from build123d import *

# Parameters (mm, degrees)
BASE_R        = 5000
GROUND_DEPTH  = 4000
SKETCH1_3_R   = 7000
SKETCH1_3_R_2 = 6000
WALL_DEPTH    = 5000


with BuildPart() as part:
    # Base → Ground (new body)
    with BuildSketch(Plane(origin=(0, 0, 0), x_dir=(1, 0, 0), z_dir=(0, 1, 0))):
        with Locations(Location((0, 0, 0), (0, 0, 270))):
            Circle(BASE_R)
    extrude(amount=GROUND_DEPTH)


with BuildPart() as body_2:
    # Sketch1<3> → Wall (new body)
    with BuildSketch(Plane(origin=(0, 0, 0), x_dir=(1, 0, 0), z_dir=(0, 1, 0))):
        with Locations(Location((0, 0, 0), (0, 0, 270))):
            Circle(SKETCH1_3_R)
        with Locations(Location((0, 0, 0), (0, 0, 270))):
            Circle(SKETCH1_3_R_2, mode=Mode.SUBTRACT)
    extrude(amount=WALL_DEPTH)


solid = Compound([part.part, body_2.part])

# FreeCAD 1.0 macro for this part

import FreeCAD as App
import Part
import Sketcher

doc = App.newDocument("Part")
body = doc.addObject("PartDesign::Body", "Body")

# Sketch on XZ plane
sketch1 = body.newObject("Sketcher::SketchObject", "Sketch")
sketch1.AttachmentSupport = (doc.getObject("XZ_Plane"), [""])
sketch1.MapMode = "FlatFace"
sketch1.addGeometry(Part.Circle(App.Vector(0, 0, 0), App.Vector(0, 0, 1), 5000), False)
sketch1.addConstraint([
    Sketcher.Constraint("Coincident", 0, 3, -1, 1),
    Sketcher.Constraint("Diameter", 0, 10000.0),
])
pad1 = body.newObject("PartDesign::Pad", "Pad")
pad1.Profile = sketch1
pad1.Length = 4000
pad1.Reversed = True
body2 = doc.addObject("PartDesign::Body", "Body001")

# Sketch on XZ plane
sketch2 = body2.newObject("Sketcher::SketchObject", "Sketch001")
sketch2.AttachmentSupport = (doc.getObject("XZ_Plane001"), [""])
sketch2.MapMode = "FlatFace"
sketch2.addGeometry([
    Part.Circle(App.Vector(0, 0, 0), App.Vector(0, 0, 1), 7000),
    Part.Circle(App.Vector(0, 0, 0), App.Vector(0, 0, 1), 6000),
], False)
sketch2.addConstraint([
    Sketcher.Constraint("Coincident", 0, 3, -1, 1),
    Sketcher.Constraint("Coincident", 1, 3, -1, 1),
    Sketcher.Constraint("Diameter", 0, 14000.0),
    Sketcher.Constraint("Diameter", 1, 12000.0),
])
pad2 = body2.newObject("PartDesign::Pad", "Pad001")
pad2.Profile = sketch2
pad2.Length = 5000
pad2.Reversed = True

doc.recompute()
